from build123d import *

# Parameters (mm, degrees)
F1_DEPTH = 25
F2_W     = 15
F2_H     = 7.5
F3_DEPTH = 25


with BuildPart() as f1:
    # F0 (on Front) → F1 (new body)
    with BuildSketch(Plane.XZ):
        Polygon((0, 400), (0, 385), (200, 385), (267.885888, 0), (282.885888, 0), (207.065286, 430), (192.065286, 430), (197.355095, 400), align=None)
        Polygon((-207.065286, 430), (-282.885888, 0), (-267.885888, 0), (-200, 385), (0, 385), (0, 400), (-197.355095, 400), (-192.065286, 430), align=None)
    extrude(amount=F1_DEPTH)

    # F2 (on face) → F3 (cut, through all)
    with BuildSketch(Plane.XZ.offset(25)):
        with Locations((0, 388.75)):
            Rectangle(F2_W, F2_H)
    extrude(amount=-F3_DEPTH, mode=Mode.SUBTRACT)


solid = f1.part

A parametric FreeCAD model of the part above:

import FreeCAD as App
import Part
import Sketcher
from FreeCAD import Vector
Q = App.Units.Quantity

doc = App.newDocument("Part")
params = doc.addObject("Spreadsheet::Sheet", "Params")
for row, (alias, value) in enumerate([
    ("sketch1_width", "15 mm"),
    ("sketch1_width2", "400 mm"),
    ("pad1_length", "25 mm"),
    ("sketch2_width", "15 mm"),
    ("sketch2_height", "7.5 mm"),
], start=1):
    params.set(f"A{row}", alias)
    params.set(f"B{row}", "=" + value)
    params.setAlias(f"B{row}", alias)

body = doc.addObject("PartDesign::Body", "Body")

# Sketch on XZ plane
sketch1 = doc.addObject("Sketcher::SketchObject", "Sketch")
body.addObject(sketch1)
sketch1.AttachmentSupport = (doc.XZ_Plane, [""])
sketch1.MapMode = "FlatFace"
sketch1.addGeometry(Part.LineSegment(Vector(200, 385, 0), Vector(267.885888, 0, 0)), False)
sketch1.addGeometry(Part.LineSegment(Vector(267.885888, 0, 0), Vector(282.885888, 0, 0)), False)
sketch1.addGeometry(Part.LineSegment(Vector(282.885888, 0, 0), Vector(207.065286, 430, 0)), False)
sketch1.addGeometry(Part.LineSegment(Vector(207.065286, 430, 0), Vector(192.065286, 430, 0)), False)
sketch1.addGeometry(Part.LineSegment(Vector(192.065286, 430, 0), Vector(197.355095, 400, 0)), False)
sketch1.addGeometry(Part.LineSegment(Vector(197.355095, 400, 0), Vector(-197.355095, 400, 0)), False)
sketch1.addGeometry(Part.LineSegment(Vector(-197.355095, 400, 0), Vector(-192.065286, 430, 0)), False)
sketch1.addGeometry(Part.LineSegment(Vector(-192.065286, 430, 0), Vector(-207.065286, 430, 0)), False)
sketch1.addGeometry(Part.LineSegment(Vector(-207.065286, 430, 0), Vector(-282.885888, 0, 0)), False)
sketch1.addGeometry(Part.LineSegment(Vector(-282.885888, 0, 0), Vector(-267.885888, 0, 0)), False)
sketch1.addGeometry(Part.LineSegment(Vector(-267.885888, 0, 0), Vector(-200, 385, 0)), False)
sketch1.addGeometry(Part.LineSegment(Vector(-200, 385, 0), Vector(200, 385, 0)), False)
sketch1.addConstraint(Sketcher.Constraint("Coincident", 0, 2, 1, 1))
sketch1.addConstraint(Sketcher.Constraint("Coincident", 1, 2, 2, 1))
sketch1.addConstraint(Sketcher.Constraint("Coincident", 2, 2, 3, 1))
sketch1.addConstraint(Sketcher.Constraint("Coincident", 3, 2, 4, 1))
sketch1.addConstraint(Sketcher.Constraint("Coincident", 4, 2, 5, 1))
sketch1.addConstraint(Sketcher.Constraint("Coincident", 5, 2, 6, 1))
sketch1.addConstraint(Sketcher.Constraint("Coincident", 6, 2, 7, 1))
sketch1.addConstraint(Sketcher.Constraint("Coincident", 7, 2, 8, 1))
sketch1.addConstraint(Sketcher.Constraint("Coincident", 8, 2, 9, 1))
sketch1.addConstraint(Sketcher.Constraint("Coincident", 9, 2, 10, 1))
sketch1.addConstraint(Sketcher.Constraint("Coincident", 10, 2, 11, 1))
sketch1.addConstraint(Sketcher.Constraint("Coincident", 11, 2, 0, 1))
sketch1.addConstraint(Sketcher.Constraint("Horizontal", 1))
sketch1.addConstraint(Sketcher.Constraint("Horizontal", 3))
sketch1.addConstraint(Sketcher.Constraint("Horizontal", 5))
sketch1.addConstraint(Sketcher.Constraint("Horizontal", 7))
sketch1.addConstraint(Sketcher.Constraint("Horizontal", 9))
sketch1.addConstraint(Sketcher.Constraint("Horizontal", 11))
sketch1.addConstraint(Sketcher.Constraint("Symmetric", 1, 2, 8, 2, -1, 1))
sketch1.addConstraint(Sketcher.Constraint("Symmetric", 3, 2, 6, 2, -2))
sketch1.addConstraint(Sketcher.Constraint("Symmetric", 0, 2, 9, 2, -2))
sketch1.addConstraint(Sketcher.Constraint("Parallel", 0, 2))
sketch1.addConstraint(Sketcher.Constraint("Parallel", 2, 4))
sketch1.addConstraint(Sketcher.Constraint("Parallel", 6, 8))
sketch1.addConstraint(Sketcher.Constraint("Parallel", 8, 10))
sketch1.addConstraint(Sketcher.Constraint("Equal", 1, 3))
sketch1.addConstraint(Sketcher.Constraint("Equal", 3, 7))
sketch1.addConstraint(Sketcher.Constraint("DistanceX", 1, 1, 1, 2, Q("15 mm")))
sketch1.addConstraint(Sketcher.Constraint("DistanceX", 11, 1, 11, 2, Q("400 mm")))
sketch1.addConstraint(Sketcher.Constraint("Angle", 0, Q("-80 deg")))
sketch1.addConstraint(Sketcher.Constraint("DistanceY", -1, 1, 2, 2, Q("430 mm")))
sketch1.addConstraint(Sketcher.Constraint("DistanceY", -1, 1, 4, 2, Q("400 mm")))
sketch1.addConstraint(Sketcher.Constraint("DistanceY", -1, 1, 10, 2, Q("385 mm")))
sketch1.setExpression("Constraints[27]", "Params.sketch1_width")
sketch1.setExpression("Constraints[28]", "Params.sketch1_width2")
pad1 = doc.addObject("PartDesign::Pad", "Pad")
body.addObject(pad1)
pad1.Profile = sketch1
pad1.setExpression("Length", "Params.pad1_length")

# Sketch on XZ plane
sketch2 = doc.addObject("Sketcher::SketchObject", "Sketch001")
body.addObject(sketch2)
sketch2.AttachmentSupport = (doc.XZ_Plane, [""])
sketch2.MapMode = "FlatFace"
sketch2.AttachmentOffset = App.Placement(Vector(0, 0, 25), App.Rotation())
sketch2.addGeometry(Part.LineSegment(Vector(-7.5, 392.5, 0), Vector(-7.5, 385, 0)), False)
sketch2.addGeometry(Part.LineSegment(Vector(-7.5, 385, 0), Vector(7.5, 385, 0)), False)
sketch2.addGeometry(Part.LineSegment(Vector(7.5, 385, 0), Vector(7.5, 392.5, 0)), False)
sketch2.addGeometry(Part.LineSegment(Vector(7.5, 392.5, 0), Vector(-7.5, 392.5, 0)), False)
sketch2.addConstraint(Sketcher.Constraint("Coincident", 0, 2, 1, 1))
sketch2.addConstraint(Sketcher.Constraint("Coincident", 1, 2, 2, 1))
sketch2.addConstraint(Sketcher.Constraint("Coincident", 2, 2, 3, 1))
sketch2.addConstraint(Sketcher.Constraint("Coincident", 3, 2, 0, 1))
sketch2.addConstraint(Sketcher.Constraint("Vertical", 0))
sketch2.addConstraint(Sketcher.Constraint("Horizontal", 1))
sketch2.addConstraint(Sketcher.Constraint("Vertical", 2))
sketch2.addConstraint(Sketcher.Constraint("Horizontal", 3))
sketch2.addConstraint(Sketcher.Constraint("DistanceX", 1, 1, 1, 2, Q("15 mm")))
sketch2.addConstraint(Sketcher.Constraint("DistanceY", 0, 2, 0, 1, Q("7.5 mm")))
sketch2.addConstraint(Sketcher.Constraint("DistanceY", -1, 1, 0, 2, Q("385 mm")))
sketch2.addConstraint(Sketcher.Constraint("DistanceX", 0, 2, -1, 1, Q("7.5 mm")))
sketch2.setExpression("Constraints[8]", "Params.sketch2_width")
sketch2.setExpression("Constraints[9]", "Params.sketch2_height")
pocket1 = doc.addObject("PartDesign::Pocket", "Pocket")
body.addObject(pocket1)
pocket1.Profile = sketch2
pocket1.Type = "ThroughAll"

doc.recompute()
